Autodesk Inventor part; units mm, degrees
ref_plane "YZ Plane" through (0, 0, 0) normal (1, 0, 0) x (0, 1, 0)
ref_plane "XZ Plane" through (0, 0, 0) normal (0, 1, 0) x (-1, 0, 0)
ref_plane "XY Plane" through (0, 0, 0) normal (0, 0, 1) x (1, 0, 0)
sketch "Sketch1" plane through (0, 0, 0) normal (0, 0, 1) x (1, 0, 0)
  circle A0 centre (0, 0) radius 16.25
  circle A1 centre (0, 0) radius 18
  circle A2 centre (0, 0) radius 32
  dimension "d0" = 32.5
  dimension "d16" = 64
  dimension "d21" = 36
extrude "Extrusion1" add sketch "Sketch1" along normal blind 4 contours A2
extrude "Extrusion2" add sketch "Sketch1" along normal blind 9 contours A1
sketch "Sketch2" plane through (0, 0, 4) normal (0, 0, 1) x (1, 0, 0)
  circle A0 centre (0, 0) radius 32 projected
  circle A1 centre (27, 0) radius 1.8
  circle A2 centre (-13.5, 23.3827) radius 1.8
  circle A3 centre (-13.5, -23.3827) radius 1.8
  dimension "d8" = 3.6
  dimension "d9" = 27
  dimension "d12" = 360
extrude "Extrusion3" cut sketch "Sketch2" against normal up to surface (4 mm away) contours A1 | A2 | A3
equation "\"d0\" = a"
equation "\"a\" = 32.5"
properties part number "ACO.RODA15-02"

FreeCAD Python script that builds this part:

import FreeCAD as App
import Part
import Sketcher

V = App.Vector

doc = App.newDocument("Part")
body = doc.addObject("PartDesign::Body", "Body")

# Sketch on XY plane
sketch1 = body.newObject("Sketcher::SketchObject", "Sketch")
sketch1.AttachmentSupport = (doc.getObject("XY_Plane"), [""])
sketch1.MapMode = "FlatFace"
sketch1.addGeometry(Part.Circle(V(0, 0, 0), V(0, 0, 1), 32), False)
sketch1.addGeometry(Part.Circle(V(0, 0, 0), V(0, 0, 1), 18), False)
sketch1.addConstraint(Sketcher.Constraint("Coincident", 0, 3, -1, 1))
sketch1.addConstraint(Sketcher.Constraint("Coincident", 1, 3, -1, 1))
sketch1.addConstraint(Sketcher.Constraint("Diameter", 0, 64.0))
sketch1.addConstraint(Sketcher.Constraint("Diameter", 1, 36.0))
pad1 = body.newObject("PartDesign::Pad", "Pad")
pad1.Profile = sketch1
pad1.Length = 4

# Sketch on XY plane
sketch2 = body.newObject("Sketcher::SketchObject", "Sketch001")
sketch2.AttachmentSupport = (doc.getObject("XY_Plane"), [""])
sketch2.MapMode = "FlatFace"
sketch2.addGeometry(Part.Circle(V(0, 0, 0), V(0, 0, 1), 18), False)
sketch2.addGeometry(Part.Circle(V(0, 0, 0), V(0, 0, 1), 16), False)
sketch2.addConstraint(Sketcher.Constraint("Coincident", 0, 3, -1, 1))
sketch2.addConstraint(Sketcher.Constraint("Coincident", 1, 3, -1, 1))
sketch2.addConstraint(Sketcher.Constraint("Diameter", 0, 36.0))
sketch2.addConstraint(Sketcher.Constraint("Diameter", 1, 32.5))
pad2 = body.newObject("PartDesign::Pad", "Pad001")
pad2.Profile = sketch2
pad2.Length = 9

# Sketch on XY plane
sketch3 = body.newObject("Sketcher::SketchObject", "Sketch002")
sketch3.AttachmentSupport = (doc.getObject("XY_Plane"), [""])
sketch3.MapMode = "FlatFace"
sketch3.AttachmentOffset = App.Placement(V(0, 0, 4), App.Rotation())
sketch3.addGeometry(Part.Circle(V(27, 0, 0), V(0, 0, 1), 1.8), False)
sketch3.addGeometry(Part.Circle(V(-13.5, 23.4, 0), V(0, 0, 1), 1.8), False)
sketch3.addGeometry(Part.Circle(V(-13.5, -23.4, 0), V(0, 0, 1), 1.8), False)
sketch3.addConstraint(Sketcher.Constraint("Equal", 0, 1))
sketch3.addConstraint(Sketcher.Constraint("Equal", 1, 2))
sketch3.addConstraint(Sketcher.Constraint("Symmetric", 1, 3, 2, 3, -1))
sketch3.addConstraint(Sketcher.Constraint("PointOnObject", 0, 3, -1))
sketch3.addConstraint(Sketcher.Constraint("Diameter", 0, 3.6))
sketch3.addConstraint(Sketcher.Constraint("DistanceX", -1, 1, 0, 3, 27.0))
sketch3.addConstraint(Sketcher.Constraint("DistanceX", 1, 3, -1, 1, 13.5))
sketch3.addConstraint(Sketcher.Constraint("DistanceY", -1, 1, 1, 3, 23.3827))
pocket1 = body.newObject("PartDesign::Pocket", "Pocket")
pocket1.Profile = sketch3
pocket1.Length = 4

doc.recompute()
